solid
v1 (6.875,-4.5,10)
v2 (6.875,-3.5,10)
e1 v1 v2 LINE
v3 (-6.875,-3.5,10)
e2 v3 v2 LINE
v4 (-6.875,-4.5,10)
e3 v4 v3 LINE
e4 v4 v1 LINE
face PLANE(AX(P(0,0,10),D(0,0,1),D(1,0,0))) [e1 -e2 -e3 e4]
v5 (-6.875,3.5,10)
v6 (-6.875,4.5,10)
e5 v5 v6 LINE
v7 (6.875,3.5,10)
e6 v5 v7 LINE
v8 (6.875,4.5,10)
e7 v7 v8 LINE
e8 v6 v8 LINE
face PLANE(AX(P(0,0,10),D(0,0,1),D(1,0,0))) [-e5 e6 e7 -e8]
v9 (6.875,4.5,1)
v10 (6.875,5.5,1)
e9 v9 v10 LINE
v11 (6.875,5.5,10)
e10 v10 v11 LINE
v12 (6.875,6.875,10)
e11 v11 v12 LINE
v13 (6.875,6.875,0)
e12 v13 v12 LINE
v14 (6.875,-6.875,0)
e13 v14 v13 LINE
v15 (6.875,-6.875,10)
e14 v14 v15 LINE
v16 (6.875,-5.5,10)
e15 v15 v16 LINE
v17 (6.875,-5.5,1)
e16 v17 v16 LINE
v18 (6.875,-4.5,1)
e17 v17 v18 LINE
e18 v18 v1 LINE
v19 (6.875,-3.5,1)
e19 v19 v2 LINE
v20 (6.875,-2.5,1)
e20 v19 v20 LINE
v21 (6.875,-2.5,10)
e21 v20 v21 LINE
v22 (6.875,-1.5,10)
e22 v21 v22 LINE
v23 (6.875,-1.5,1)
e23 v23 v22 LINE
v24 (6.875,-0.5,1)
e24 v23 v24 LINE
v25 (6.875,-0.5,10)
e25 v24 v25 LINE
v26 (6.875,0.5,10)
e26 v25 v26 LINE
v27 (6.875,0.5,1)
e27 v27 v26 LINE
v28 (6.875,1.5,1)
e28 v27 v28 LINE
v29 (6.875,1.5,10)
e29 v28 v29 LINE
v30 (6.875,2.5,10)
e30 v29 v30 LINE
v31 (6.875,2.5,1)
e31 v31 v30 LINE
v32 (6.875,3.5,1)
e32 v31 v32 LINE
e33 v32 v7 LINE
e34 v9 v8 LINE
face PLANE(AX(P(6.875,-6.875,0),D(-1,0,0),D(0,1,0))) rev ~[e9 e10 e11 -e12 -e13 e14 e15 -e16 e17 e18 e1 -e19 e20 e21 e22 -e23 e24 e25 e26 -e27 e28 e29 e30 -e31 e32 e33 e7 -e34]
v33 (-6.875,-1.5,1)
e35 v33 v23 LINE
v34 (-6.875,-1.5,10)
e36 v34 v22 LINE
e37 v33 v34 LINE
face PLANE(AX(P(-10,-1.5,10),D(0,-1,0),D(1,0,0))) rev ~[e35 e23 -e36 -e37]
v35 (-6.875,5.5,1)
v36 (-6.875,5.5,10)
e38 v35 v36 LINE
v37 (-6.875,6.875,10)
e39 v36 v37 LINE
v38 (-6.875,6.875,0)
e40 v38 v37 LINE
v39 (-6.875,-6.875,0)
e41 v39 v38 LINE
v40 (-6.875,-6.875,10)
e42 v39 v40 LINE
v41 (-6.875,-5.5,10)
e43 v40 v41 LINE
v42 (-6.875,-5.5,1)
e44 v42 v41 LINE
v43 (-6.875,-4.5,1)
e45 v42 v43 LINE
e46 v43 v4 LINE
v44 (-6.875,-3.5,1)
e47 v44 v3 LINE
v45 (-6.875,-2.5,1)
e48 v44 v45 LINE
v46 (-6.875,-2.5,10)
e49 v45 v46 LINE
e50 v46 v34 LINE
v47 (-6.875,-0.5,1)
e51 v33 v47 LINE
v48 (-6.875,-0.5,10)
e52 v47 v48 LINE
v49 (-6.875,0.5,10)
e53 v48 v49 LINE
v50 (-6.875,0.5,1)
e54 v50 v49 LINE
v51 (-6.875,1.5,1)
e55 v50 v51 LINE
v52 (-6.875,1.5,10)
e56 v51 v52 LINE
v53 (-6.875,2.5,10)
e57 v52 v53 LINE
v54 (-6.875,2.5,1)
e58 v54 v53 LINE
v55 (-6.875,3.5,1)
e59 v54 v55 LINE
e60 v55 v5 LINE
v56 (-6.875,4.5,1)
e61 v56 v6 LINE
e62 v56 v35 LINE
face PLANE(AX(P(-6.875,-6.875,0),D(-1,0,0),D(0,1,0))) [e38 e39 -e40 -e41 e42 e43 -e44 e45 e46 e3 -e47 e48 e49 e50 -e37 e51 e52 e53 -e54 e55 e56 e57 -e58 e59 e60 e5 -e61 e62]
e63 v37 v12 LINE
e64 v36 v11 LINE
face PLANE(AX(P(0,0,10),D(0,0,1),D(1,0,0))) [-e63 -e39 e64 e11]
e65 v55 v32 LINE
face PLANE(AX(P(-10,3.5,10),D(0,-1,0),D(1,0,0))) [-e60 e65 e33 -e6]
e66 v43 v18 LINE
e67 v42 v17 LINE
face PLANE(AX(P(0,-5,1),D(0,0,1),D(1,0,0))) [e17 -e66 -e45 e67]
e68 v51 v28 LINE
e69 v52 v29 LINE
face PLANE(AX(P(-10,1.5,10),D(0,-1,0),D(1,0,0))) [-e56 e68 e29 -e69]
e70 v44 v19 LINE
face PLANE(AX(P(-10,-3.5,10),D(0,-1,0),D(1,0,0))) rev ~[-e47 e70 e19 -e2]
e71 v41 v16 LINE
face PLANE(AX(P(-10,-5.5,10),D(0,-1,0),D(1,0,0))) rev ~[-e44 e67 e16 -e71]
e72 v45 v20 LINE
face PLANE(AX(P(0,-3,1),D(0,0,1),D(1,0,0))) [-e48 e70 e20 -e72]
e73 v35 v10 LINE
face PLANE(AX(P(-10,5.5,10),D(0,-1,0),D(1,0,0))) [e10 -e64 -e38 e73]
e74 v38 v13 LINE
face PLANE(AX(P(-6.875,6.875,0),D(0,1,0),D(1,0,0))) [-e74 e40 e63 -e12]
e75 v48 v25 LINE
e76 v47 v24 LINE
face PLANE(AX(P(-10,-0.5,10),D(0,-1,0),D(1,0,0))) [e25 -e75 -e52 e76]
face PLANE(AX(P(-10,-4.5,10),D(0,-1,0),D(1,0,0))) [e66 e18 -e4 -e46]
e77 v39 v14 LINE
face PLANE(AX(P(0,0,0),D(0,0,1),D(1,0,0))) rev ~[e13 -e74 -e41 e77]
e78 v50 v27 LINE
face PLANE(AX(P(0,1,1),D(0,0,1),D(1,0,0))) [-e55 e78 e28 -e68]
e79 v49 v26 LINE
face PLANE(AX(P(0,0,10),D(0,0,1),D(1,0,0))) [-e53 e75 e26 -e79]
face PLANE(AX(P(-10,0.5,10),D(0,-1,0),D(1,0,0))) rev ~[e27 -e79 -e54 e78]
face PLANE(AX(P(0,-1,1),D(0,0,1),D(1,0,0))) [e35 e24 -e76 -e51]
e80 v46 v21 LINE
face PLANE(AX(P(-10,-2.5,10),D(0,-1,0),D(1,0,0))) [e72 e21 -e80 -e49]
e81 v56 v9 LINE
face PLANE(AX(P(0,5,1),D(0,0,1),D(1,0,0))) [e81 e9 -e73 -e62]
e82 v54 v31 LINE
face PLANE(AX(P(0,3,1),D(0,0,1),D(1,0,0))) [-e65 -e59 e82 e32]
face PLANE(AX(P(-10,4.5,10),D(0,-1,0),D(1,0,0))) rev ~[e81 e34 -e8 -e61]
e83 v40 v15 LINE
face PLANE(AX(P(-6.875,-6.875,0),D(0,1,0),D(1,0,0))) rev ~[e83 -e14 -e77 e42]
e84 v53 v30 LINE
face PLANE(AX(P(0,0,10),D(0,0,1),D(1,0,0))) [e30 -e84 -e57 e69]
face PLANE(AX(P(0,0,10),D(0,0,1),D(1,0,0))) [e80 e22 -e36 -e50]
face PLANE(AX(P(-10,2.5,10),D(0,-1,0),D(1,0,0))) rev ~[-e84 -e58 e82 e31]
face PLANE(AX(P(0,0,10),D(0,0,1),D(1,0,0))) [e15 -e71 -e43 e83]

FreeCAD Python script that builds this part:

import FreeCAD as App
import Part
import Sketcher
from FreeCAD import Vector
Q = App.Units.Quantity

doc = App.newDocument("Part")
body = doc.addObject("PartDesign::Body", "Body")

sketch1 = doc.addObject("Sketcher::SketchObject", "Sketch")
body.addObject(sketch1)
sketch1.AttachmentSupport = (doc.XY_Plane, [""])
sketch1.MapMode = "FlatFace"
sketch1.addGeometry([
    Part.LineSegment(Vector(-7, 7, 0), Vector(-7, -7, 0)),
    Part.LineSegment(Vector(-7, -7, 0), Vector(7, -7, 0)),
    Part.LineSegment(Vector(7, -7, 0), Vector(7, 7, 0)),
    Part.LineSegment(Vector(7, 7, 0), Vector(-7, 7, 0)),
], False)
sketch1.addConstraint([
    Sketcher.Constraint("Coincident", 0, 2, 1, 1),
    Sketcher.Constraint("Coincident", 1, 2, 2, 1),
    Sketcher.Constraint("Coincident", 2, 2, 3, 1),
    Sketcher.Constraint("Coincident", 3, 2, 0, 1),
    Sketcher.Constraint("Vertical", 0),
    Sketcher.Constraint("Horizontal", 1),
    Sketcher.Constraint("Vertical", 2),
    Sketcher.Constraint("Horizontal", 3),
    Sketcher.Constraint("Symmetric", 0, 2, 2, 2, -1, 1),
    Sketcher.Constraint("Equal", 3, 0),
    Sketcher.Constraint("DistanceX", 1, 1, 1, 2, Q("13.75 mm")),
])
pad1 = doc.addObject("PartDesign::Pad", "Pad")
body.addObject(pad1)
pad1.Profile = sketch1
pad1.Length = 10

sketch2 = doc.addObject("Sketcher::SketchObject", "Sketch001")
body.addObject(sketch2)
sketch2.AttachmentSupport = (doc.XY_Plane, [""])
sketch2.MapMode = "FlatFace"
sketch2.AttachmentOffset = App.Placement(Vector(0, 0, 10), App.Rotation())
sketch2.addGeometry([
    Part.LineSegment(Vector(-10, -4.5, 0), Vector(-10, -5.5, 0)),
    Part.LineSegment(Vector(-10, -5.5, 0), Vector(10, -5.5, 0)),
    Part.LineSegment(Vector(10, -5.5, 0), Vector(10, -4.5, 0)),
    Part.LineSegment(Vector(10, -4.5, 0), Vector(-10, -4.5, 0)),
], False)
sketch2.addConstraint([
    Sketcher.Constraint("Coincident", 0, 2, 1, 1),
    Sketcher.Constraint("Coincident", 1, 2, 2, 1),
    Sketcher.Constraint("Coincident", 2, 2, 3, 1),
    Sketcher.Constraint("Coincident", 3, 2, 0, 1),
    Sketcher.Constraint("Vertical", 0),
    Sketcher.Constraint("Horizontal", 1),
    Sketcher.Constraint("Vertical", 2),
    Sketcher.Constraint("Horizontal", 3),
    Sketcher.Constraint("DistanceX", 1, 1, 1, 2, Q("20 mm")),
    Sketcher.Constraint("DistanceY", 0, 2, 0, 1, Q("1 mm")),
    Sketcher.Constraint("DistanceX", 0, 2, -1, 1, Q("10 mm")),
    Sketcher.Constraint("DistanceY", 0, 2, -1, 1, Q("5.5 mm")),
])
pocket1 = doc.addObject("PartDesign::Pocket", "Pocket")
body.addObject(pocket1)
pocket1.Profile = sketch2
pocket1.Length = 9
doc.recompute()

linearpattern = doc.addObject("PartDesign::LinearPattern", "LinearPattern")
body.addObject(linearpattern)
linearpattern.Originals = [pocket1]
linearpattern.Direction = (doc.Y_Axis, [""])
linearpattern.Mode = "offset"
linearpattern.Offset = 2
linearpattern.Occurrences = 6
body.Tip = linearpattern

doc.recompute()
